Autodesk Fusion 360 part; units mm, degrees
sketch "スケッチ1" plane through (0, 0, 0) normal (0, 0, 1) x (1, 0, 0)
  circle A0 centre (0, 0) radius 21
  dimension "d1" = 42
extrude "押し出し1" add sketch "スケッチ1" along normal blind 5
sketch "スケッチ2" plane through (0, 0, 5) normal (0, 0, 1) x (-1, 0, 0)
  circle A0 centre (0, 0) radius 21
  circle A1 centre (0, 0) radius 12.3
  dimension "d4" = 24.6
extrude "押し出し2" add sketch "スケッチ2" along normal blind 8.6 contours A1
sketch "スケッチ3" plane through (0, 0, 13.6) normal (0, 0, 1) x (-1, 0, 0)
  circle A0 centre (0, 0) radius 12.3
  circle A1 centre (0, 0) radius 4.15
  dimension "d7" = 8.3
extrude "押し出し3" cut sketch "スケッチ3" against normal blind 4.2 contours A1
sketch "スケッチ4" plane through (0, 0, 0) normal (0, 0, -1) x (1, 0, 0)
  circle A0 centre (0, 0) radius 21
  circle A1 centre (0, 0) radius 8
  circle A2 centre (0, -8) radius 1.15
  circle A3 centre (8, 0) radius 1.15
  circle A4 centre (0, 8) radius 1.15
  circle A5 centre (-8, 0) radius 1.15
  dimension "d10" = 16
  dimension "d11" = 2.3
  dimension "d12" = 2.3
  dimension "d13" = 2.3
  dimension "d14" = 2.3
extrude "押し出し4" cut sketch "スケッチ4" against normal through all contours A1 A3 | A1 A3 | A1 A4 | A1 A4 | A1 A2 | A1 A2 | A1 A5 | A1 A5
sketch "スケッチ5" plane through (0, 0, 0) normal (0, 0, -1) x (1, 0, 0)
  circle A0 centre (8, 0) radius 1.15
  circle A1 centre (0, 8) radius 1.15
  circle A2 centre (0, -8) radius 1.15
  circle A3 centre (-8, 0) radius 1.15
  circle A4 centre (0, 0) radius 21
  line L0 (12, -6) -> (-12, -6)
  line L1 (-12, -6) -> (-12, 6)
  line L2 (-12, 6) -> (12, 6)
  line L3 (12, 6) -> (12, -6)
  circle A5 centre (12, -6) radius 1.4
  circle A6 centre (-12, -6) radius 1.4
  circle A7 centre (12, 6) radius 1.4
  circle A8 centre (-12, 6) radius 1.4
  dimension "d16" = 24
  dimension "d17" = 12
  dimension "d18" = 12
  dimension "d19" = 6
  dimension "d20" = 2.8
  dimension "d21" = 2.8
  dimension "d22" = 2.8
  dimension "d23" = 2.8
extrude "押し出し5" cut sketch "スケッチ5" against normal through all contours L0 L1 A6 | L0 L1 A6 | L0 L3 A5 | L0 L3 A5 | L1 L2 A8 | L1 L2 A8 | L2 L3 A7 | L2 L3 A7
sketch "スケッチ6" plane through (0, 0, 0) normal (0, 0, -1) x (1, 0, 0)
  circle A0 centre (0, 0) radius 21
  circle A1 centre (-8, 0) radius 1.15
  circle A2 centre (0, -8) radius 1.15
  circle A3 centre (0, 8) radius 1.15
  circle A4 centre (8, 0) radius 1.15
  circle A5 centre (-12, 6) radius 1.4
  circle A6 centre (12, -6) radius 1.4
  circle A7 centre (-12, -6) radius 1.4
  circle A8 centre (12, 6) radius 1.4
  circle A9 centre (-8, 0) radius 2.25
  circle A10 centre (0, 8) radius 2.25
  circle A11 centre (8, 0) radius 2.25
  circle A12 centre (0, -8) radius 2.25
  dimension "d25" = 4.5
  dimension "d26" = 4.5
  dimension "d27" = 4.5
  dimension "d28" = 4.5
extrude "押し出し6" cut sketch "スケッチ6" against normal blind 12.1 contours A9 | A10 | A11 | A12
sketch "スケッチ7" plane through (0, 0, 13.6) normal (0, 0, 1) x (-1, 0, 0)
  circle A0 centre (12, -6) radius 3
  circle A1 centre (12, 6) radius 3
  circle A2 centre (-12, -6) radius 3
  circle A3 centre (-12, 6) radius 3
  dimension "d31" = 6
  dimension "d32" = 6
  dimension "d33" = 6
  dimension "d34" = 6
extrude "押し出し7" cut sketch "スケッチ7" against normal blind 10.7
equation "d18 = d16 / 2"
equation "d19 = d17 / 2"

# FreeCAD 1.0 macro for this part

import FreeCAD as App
import Part
import Sketcher

V = App.Vector
Q = App.Units.Quantity

doc = App.newDocument("Part")
body = doc.addObject("PartDesign::Body", "Body")

sketch1 = doc.addObject("Sketcher::SketchObject", "Sketch")
body.addObject(sketch1)
sketch1.AttachmentSupport = (doc.XY_Plane, [""])
sketch1.MapMode = "FlatFace"
sketch1.addGeometry(Part.Circle(V(0, 0, 0), V(0, 0, 1), 21), False)
sketch1.addConstraint(Sketcher.Constraint("Coincident", 0, 3, -1, 1))
sketch1.addConstraint(Sketcher.Constraint("Diameter", 0, Q("42 mm")))
pad1 = doc.addObject("PartDesign::Pad", "Pad")
body.addObject(pad1)
pad1.Profile = sketch1
pad1.Length = 5

sketch2 = doc.addObject("Sketcher::SketchObject", "Sketch001")
body.addObject(sketch2)
sketch2.AttachmentSupport = (doc.XY_Plane, [""])
sketch2.MapMode = "FlatFace"
sketch2.AttachmentOffset = App.Placement(V(0, 0, 5), App.Rotation())
sketch2.addGeometry(Part.Circle(V(0, 0, 0), V(0, 0, 1), 12), False)
sketch2.addConstraint(Sketcher.Constraint("Coincident", 0, 3, -1, 1))
sketch2.addConstraint(Sketcher.Constraint("Diameter", 0, Q("24.6 mm")))
pad2 = doc.addObject("PartDesign::Pad", "Pad001")
body.addObject(pad2)
pad2.Profile = sketch2
pad2.Length = 8.6

sketch3 = doc.addObject("Sketcher::SketchObject", "Sketch002")
body.addObject(sketch3)
sketch3.AttachmentSupport = (doc.XY_Plane, [""])
sketch3.MapMode = "FlatFace"
sketch3.AttachmentOffset = App.Placement(V(0, 0, 13.6), App.Rotation())
sketch3.addGeometry(Part.Circle(V(0, 0, 0), V(0, 0, 1), 4.2), False)
sketch3.addConstraint(Sketcher.Constraint("Coincident", 0, 3, -1, 1))
sketch3.addConstraint(Sketcher.Constraint("Diameter", 0, Q("8.3 mm")))
pocket1 = doc.addObject("PartDesign::Pocket", "Pocket")
body.addObject(pocket1)
pocket1.Profile = sketch3
pocket1.Length = 4.2

sketch4 = doc.addObject("Sketcher::SketchObject", "Sketch003")
body.addObject(sketch4)
sketch4.AttachmentSupport = (doc.XY_Plane, [""])
sketch4.MapMode = "FlatFace"
sketch4.addGeometry(Part.Circle(V(8, 0, 0), V(0, 0, 1), 1.1), False)
sketch4.addGeometry(Part.Circle(V(0, -8, 0), V(0, 0, 1), 1.1), False)
sketch4.addGeometry(Part.Circle(V(0, 8, 0), V(0, 0, 1), 1.1), False)
sketch4.addGeometry(Part.Circle(V(-8, 0, 0), V(0, 0, 1), 1.1), False)
sketch4.addConstraint(Sketcher.Constraint("Equal", 0, 1))
sketch4.addConstraint(Sketcher.Constraint("Equal", 1, 2))
sketch4.addConstraint(Sketcher.Constraint("Equal", 2, 3))
sketch4.addConstraint(Sketcher.Constraint("Symmetric", 1, 3, 2, 3, -1, 1))
sketch4.addConstraint(Sketcher.Constraint("Symmetric", 0, 3, 3, 3, -1, 1))
sketch4.addConstraint(Sketcher.Constraint("PointOnObject", 0, 3, -1))
sketch4.addConstraint(Sketcher.Constraint("PointOnObject", 1, 3, -2))
sketch4.addConstraint(Sketcher.Constraint("Diameter", 0, Q("2.3 mm")))
sketch4.addConstraint(Sketcher.Constraint("DistanceY", 1, 3, 2, 3, Q("16 mm")))
sketch4.addConstraint(Sketcher.Constraint("DistanceX", 3, 3, 0, 3, Q("16 mm")))
pocket2 = doc.addObject("PartDesign::Pocket", "Pocket001")
body.addObject(pocket2)
pocket2.Profile = sketch4
pocket2.Type = "ThroughAll"
pocket2.Reversed = True

sketch5 = doc.addObject("Sketcher::SketchObject", "Sketch004")
body.addObject(sketch5)
sketch5.AttachmentSupport = (doc.XY_Plane, [""])
sketch5.MapMode = "FlatFace"
sketch5.addGeometry(Part.Circle(V(-12, 6, 0), V(0, 0, 1), 1.4), False)
sketch5.addGeometry(Part.Circle(V(12, 6, 0), V(0, 0, 1), 1.4), False)
sketch5.addGeometry(Part.Circle(V(-12, -6, 0), V(0, 0, 1), 1.4), False)
sketch5.addGeometry(Part.Circle(V(12, -6, 0), V(0, 0, 1), 1.4), False)
sketch5.addConstraint(Sketcher.Constraint("Equal", 0, 1))
sketch5.addConstraint(Sketcher.Constraint("Equal", 1, 2))
sketch5.addConstraint(Sketcher.Constraint("Equal", 2, 3))
sketch5.addConstraint(Sketcher.Constraint("Symmetric", 1, 3, 2, 3, -1, 1))
sketch5.addConstraint(Sketcher.Constraint("Symmetric", 0, 3, 3, 3, -1, 1))
sketch5.addConstraint(Sketcher.Constraint("Symmetric", 0, 3, 1, 3, -2))
sketch5.addConstraint(Sketcher.Constraint("Diameter", 0, Q("2.8 mm")))
sketch5.addConstraint(Sketcher.Constraint("DistanceX", 0, 3, -1, 1, Q("12 mm")))
sketch5.addConstraint(Sketcher.Constraint("DistanceY", -1, 1, 0, 3, Q("6 mm")))
pocket3 = doc.addObject("PartDesign::Pocket", "Pocket002")
body.addObject(pocket3)
pocket3.Profile = sketch5
pocket3.Type = "ThroughAll"
pocket3.Reversed = True

sketch6 = doc.addObject("Sketcher::SketchObject", "Sketch005")
body.addObject(sketch6)
sketch6.AttachmentSupport = (doc.XY_Plane, [""])
sketch6.MapMode = "FlatFace"
sketch6.addGeometry(Part.Circle(V(-8, 0, 0), V(0, 0, 1), 2.2), False)
sketch6.addGeometry(Part.Circle(V(-8, 0, 0), V(0, 0, 1), 1.1), False)
sketch6.addGeometry(Part.Circle(V(0, -8, 0), V(0, 0, 1), 2.2), False)
sketch6.addGeometry(Part.Circle(V(0, -8, 0), V(0, 0, 1), 1.1), False)
sketch6.addGeometry(Part.Circle(V(8, 0, 0), V(0, 0, 1), 2.2), False)
sketch6.addGeometry(Part.Circle(V(8, 0, 0), V(0, 0, 1), 1.1), False)
sketch6.addGeometry(Part.Circle(V(0, 8, 0), V(0, 0, 1), 2.2), False)
sketch6.addGeometry(Part.Circle(V(0, 8, 0), V(0, 0, 1), 1.1), False)
sketch6.addConstraint(Sketcher.Constraint("Coincident", 1, 3, 0, 3))
sketch6.addConstraint(Sketcher.Constraint("Coincident", 3, 3, 2, 3))
sketch6.addConstraint(Sketcher.Constraint("Coincident", 5, 3, 4, 3))
sketch6.addConstraint(Sketcher.Constraint("Coincident", 7, 3, 6, 3))
sketch6.addConstraint(Sketcher.Constraint("Equal", 0, 2))
sketch6.addConstraint(Sketcher.Constraint("Equal", 1, 3))
sketch6.addConstraint(Sketcher.Constraint("Equal", 2, 4))
sketch6.addConstraint(Sketcher.Constraint("Equal", 3, 5))
sketch6.addConstraint(Sketcher.Constraint("Equal", 4, 6))
sketch6.addConstraint(Sketcher.Constraint("Equal", 5, 7))
sketch6.addConstraint(Sketcher.Constraint("Symmetric", 0, 3, 4, 3, -1, 1))
sketch6.addConstraint(Sketcher.Constraint("Symmetric", 2, 3, 6, 3, -1, 1))
sketch6.addConstraint(Sketcher.Constraint("PointOnObject", 0, 3, -1))
sketch6.addConstraint(Sketcher.Constraint("PointOnObject", 2, 3, -2))
sketch6.addConstraint(Sketcher.Constraint("Diameter", 0, Q("4.5 mm")))
sketch6.addConstraint(Sketcher.Constraint("Diameter", 1, Q("2.3 mm")))
sketch6.addConstraint(Sketcher.Constraint("DistanceX", 0, 3, -1, 1, Q("8 mm")))
sketch6.addConstraint(Sketcher.Constraint("DistanceY", 2, 3, -1, 1, Q("8 mm")))
pocket4 = doc.addObject("PartDesign::Pocket", "Pocket003")
body.addObject(pocket4)
pocket4.Profile = sketch6
pocket4.Length = 12.1
pocket4.Reversed = True

sketch7 = doc.addObject("Sketcher::SketchObject", "Sketch006")
body.addObject(sketch7)
sketch7.AttachmentSupport = (doc.XY_Plane, [""])
sketch7.MapMode = "FlatFace"
sketch7.AttachmentOffset = App.Placement(V(0, 0, 13.6), App.Rotation())
sketch7.addGeometry(Part.Circle(V(-12, 6, 0), V(0, 0, 1), 3), False)
sketch7.addGeometry(Part.Circle(V(-12, -6, 0), V(0, 0, 1), 3), False)
sketch7.addGeometry(Part.Circle(V(12, 6, 0), V(0, 0, 1), 3), False)
sketch7.addGeometry(Part.Circle(V(12, -6, 0), V(0, 0, 1), 3), False)
sketch7.addConstraint(Sketcher.Constraint("Equal", 0, 1))
sketch7.addConstraint(Sketcher.Constraint("Equal", 1, 2))
sketch7.addConstraint(Sketcher.Constraint("Equal", 2, 3))
sketch7.addConstraint(Sketcher.Constraint("Symmetric", 1, 3, 2, 3, -1, 1))
sketch7.addConstraint(Sketcher.Constraint("Symmetric", 0, 3, 3, 3, -1, 1))
sketch7.addConstraint(Sketcher.Constraint("Symmetric", 0, 3, 2, 3, -2))
sketch7.addConstraint(Sketcher.Constraint("Diameter", 0, Q("6 mm")))
sketch7.addConstraint(Sketcher.Constraint("DistanceY", -1, 1, 0, 3, Q("6 mm")))
sketch7.addConstraint(Sketcher.Constraint("DistanceX", 0, 3, -1, 1, Q("12 mm")))
pocket5 = doc.addObject("PartDesign::Pocket", "Pocket004")
body.addObject(pocket5)
pocket5.Profile = sketch7
pocket5.Length = 10.7

doc.recompute()
